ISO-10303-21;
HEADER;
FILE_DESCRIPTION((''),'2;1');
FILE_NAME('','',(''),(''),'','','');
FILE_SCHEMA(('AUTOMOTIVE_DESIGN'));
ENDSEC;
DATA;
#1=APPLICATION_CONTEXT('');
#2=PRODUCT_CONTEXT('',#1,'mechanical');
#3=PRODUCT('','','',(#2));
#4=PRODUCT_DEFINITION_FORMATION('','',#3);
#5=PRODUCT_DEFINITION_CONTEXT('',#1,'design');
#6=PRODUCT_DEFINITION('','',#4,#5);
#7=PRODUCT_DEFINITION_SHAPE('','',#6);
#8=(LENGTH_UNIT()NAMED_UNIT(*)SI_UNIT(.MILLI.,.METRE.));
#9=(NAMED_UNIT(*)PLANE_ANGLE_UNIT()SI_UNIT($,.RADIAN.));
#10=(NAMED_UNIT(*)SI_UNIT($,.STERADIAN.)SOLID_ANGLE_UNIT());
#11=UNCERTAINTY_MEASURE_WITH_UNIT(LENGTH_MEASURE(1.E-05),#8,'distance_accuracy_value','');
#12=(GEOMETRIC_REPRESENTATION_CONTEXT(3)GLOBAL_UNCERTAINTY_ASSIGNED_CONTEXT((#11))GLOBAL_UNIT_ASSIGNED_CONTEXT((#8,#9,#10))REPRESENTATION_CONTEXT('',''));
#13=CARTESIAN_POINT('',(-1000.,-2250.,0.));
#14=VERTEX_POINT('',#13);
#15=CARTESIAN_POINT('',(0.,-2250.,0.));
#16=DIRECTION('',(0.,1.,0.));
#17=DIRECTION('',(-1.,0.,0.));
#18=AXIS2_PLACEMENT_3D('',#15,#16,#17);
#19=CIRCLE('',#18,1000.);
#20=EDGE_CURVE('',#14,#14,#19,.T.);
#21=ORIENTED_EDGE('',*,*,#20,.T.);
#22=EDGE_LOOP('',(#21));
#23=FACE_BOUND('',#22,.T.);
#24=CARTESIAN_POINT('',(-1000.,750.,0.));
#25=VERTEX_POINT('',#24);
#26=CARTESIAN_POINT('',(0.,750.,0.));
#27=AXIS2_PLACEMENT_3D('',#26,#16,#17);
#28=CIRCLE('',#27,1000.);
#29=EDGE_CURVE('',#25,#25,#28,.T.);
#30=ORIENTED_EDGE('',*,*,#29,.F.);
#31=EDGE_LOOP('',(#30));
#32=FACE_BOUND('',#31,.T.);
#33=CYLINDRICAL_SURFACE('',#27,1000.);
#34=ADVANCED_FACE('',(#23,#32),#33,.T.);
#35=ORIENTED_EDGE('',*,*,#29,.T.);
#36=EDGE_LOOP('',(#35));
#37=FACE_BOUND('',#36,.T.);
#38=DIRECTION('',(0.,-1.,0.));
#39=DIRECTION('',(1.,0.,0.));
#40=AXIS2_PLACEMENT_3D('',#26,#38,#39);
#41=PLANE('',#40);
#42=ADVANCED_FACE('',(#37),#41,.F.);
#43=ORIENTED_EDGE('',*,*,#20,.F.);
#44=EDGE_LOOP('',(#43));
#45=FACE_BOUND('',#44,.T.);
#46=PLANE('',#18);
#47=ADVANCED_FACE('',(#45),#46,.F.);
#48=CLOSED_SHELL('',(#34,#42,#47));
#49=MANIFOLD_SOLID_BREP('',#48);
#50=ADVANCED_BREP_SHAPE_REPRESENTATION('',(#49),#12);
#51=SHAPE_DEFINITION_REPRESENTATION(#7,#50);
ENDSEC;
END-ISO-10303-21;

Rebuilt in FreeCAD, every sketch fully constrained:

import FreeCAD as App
import Part
import Sketcher
from FreeCAD import Vector


def add_polygon(sketch, points):
    """Adds a closed chain of lines whose ends are joined by coincident constraints."""
    first, n = sketch.GeometryCount, len(points)
    for a, b in zip(points, points[1:] + points[:1]):
        sketch.addGeometry(Part.LineSegment(App.Vector(*a, 0), App.Vector(*b, 0)), False)
    for i in range(n):
        sketch.addConstraint(Sketcher.Constraint("Coincident", first + i, 2, first + (i + 1) % n, 1))

doc = App.newDocument("Part")
params = doc.addObject("Spreadsheet::Sheet", "Params")
for row, (alias, value) in enumerate([
    ("sketch1_width", "1000 mm"),
    ("sketch1_height", "3000 mm"),
    ("revolution_angle", "360 deg"),
], start=1):
    params.set(f"A{row}", alias)
    params.set(f"B{row}", "=" + value)
    params.setAlias(f"B{row}", alias)

body = doc.addObject("PartDesign::Body", "Body")

sketch1 = body.newObject("Sketcher::SketchObject", "Sketch")
sketch1.AttachmentSupport = (doc.getObject("XY_Plane"), [""])
sketch1.MapMode = "FlatFace"
add_polygon(sketch1, [(0, 750), (0, -2250), (1000, -2250), (1000, 750)])
sketch1.addConstraint([
    Sketcher.Constraint("Vertical", 0),
    Sketcher.Constraint("Horizontal", 1),
    Sketcher.Constraint("Vertical", 2),
    Sketcher.Constraint("Horizontal", 3),
    Sketcher.Constraint("PointOnObject", 0, 2, -2),
    Sketcher.Constraint("DistanceX", 1, 1, 1, 2, 1000.0),
    Sketcher.Constraint("DistanceY", 0, 2, 0, 1, 3000.0),
    Sketcher.Constraint("DistanceY", 0, 2, -1, 1, 2250.0),
])
sketch1.setExpression("Constraints[9]", "Params.sketch1_width")
sketch1.setExpression("Constraints[10]", "Params.sketch1_height")
revolution = body.newObject("PartDesign::Revolution", "Revolution")
revolution.Profile = sketch1
revolution.ReferenceAxis = (sketch1, ["V_Axis"])
revolution.setExpression("Angle", "Params.revolution_angle")

doc.recompute()
